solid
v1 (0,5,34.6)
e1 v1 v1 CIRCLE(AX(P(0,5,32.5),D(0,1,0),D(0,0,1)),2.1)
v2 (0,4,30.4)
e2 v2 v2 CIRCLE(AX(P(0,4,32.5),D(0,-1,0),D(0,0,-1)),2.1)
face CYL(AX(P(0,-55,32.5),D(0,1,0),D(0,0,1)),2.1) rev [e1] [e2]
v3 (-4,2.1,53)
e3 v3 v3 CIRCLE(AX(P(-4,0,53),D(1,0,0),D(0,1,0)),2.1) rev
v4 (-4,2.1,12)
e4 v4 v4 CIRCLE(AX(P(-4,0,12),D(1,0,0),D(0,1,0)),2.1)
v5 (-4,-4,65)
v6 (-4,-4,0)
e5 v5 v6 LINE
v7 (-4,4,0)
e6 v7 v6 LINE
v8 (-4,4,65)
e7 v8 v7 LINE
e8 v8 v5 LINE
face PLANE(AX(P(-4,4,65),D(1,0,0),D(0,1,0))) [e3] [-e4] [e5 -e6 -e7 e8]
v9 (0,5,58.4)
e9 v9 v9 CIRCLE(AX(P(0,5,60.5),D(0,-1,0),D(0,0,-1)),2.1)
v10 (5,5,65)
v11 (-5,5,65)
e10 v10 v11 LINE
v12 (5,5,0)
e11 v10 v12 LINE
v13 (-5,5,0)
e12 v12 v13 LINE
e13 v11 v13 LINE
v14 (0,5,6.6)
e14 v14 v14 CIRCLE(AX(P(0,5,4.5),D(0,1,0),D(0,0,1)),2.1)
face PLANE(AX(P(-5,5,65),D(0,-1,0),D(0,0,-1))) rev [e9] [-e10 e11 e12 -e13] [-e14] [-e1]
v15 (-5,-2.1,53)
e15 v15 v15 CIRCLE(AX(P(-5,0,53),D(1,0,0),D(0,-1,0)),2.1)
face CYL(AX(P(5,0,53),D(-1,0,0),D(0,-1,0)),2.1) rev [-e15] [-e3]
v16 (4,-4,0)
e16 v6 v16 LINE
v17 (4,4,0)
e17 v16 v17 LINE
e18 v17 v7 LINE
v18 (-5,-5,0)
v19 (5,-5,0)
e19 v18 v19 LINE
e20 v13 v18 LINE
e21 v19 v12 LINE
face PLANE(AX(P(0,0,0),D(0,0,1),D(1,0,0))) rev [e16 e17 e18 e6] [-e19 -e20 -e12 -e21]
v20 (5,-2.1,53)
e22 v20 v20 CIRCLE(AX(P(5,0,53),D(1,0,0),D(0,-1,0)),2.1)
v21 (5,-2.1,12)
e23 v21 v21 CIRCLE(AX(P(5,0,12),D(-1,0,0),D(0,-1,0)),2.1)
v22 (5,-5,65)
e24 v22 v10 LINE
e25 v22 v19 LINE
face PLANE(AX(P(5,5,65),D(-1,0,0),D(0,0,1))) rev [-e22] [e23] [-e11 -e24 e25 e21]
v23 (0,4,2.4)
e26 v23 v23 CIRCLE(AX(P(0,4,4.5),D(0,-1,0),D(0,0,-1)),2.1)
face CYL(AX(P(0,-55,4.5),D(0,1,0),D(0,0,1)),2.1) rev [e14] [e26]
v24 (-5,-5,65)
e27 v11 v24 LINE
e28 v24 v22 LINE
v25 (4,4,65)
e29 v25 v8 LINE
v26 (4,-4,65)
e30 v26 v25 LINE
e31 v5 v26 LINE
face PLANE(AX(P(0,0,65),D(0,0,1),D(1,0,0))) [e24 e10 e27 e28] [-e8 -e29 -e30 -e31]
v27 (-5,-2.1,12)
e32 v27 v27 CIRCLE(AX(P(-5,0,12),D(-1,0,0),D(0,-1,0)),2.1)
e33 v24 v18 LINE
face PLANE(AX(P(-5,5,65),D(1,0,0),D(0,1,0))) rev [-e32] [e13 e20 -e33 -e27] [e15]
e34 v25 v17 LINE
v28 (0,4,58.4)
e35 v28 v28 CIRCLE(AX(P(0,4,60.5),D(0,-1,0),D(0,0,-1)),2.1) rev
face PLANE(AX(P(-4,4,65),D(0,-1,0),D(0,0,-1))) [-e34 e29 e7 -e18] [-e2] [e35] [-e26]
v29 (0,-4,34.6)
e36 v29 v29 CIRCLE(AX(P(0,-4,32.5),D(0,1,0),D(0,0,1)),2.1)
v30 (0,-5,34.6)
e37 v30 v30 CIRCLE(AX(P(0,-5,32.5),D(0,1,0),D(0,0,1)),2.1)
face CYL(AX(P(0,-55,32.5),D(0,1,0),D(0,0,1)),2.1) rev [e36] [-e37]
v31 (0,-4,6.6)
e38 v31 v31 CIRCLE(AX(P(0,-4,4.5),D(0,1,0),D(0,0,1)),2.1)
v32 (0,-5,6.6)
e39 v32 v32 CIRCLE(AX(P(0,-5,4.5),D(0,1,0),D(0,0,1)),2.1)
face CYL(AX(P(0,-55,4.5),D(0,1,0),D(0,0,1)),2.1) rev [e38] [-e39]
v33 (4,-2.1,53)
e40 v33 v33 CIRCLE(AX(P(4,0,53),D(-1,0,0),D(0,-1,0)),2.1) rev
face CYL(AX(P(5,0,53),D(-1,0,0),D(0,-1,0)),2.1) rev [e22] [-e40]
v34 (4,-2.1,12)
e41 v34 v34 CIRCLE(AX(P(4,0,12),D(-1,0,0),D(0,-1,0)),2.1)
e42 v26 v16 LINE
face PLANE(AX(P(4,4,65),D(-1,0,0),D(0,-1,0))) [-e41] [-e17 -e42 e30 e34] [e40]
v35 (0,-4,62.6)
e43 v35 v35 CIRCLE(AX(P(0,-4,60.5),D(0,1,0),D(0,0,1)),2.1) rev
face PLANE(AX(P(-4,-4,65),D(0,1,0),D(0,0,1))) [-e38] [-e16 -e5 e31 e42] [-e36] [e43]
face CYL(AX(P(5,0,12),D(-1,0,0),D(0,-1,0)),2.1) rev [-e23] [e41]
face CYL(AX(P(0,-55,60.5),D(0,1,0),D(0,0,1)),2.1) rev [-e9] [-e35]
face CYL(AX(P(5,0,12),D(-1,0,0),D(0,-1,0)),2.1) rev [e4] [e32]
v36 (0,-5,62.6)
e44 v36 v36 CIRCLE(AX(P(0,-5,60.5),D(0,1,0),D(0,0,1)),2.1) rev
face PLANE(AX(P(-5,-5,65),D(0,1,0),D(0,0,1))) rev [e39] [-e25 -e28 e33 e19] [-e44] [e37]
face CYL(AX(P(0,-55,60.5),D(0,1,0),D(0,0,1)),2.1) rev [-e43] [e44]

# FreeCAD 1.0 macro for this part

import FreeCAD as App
import Part
import Sketcher
from FreeCAD import Vector

doc = App.newDocument("Part")
body = doc.addObject("PartDesign::Body", "Body")

# Sketch on XY plane
sketch1 = body.newObject("Sketcher::SketchObject", "Sketch")
sketch1.AttachmentSupport = (doc.getObject("XY_Plane"), [""])
sketch1.MapMode = "FlatFace"
sketch1.addGeometry([
    Part.LineSegment(Vector(-5, 5, 0), Vector(-5, -5, 0)),  # 0
    Part.LineSegment(Vector(-5, -5, 0), Vector(5, -5, 0)),  # 1
    Part.LineSegment(Vector(5, -5, 0), Vector(5, 5, 0)),  # 2
    Part.LineSegment(Vector(5, 5, 0), Vector(-5, 5, 0)),  # 3
    Part.LineSegment(Vector(4, -4, 0), Vector(-4, -4, 0)),  # 4
    Part.LineSegment(Vector(-4, -4, 0), Vector(-4, 4, 0)),  # 5
    Part.LineSegment(Vector(-4, 4, 0), Vector(4, 4, 0)),  # 6
    Part.LineSegment(Vector(4, 4, 0), Vector(4, -4, 0)),  # 7
], False)
sketch1.addConstraint([
    Sketcher.Constraint("Coincident", 0, 2, 1, 1),
    Sketcher.Constraint("Coincident", 1, 2, 2, 1),
    Sketcher.Constraint("Coincident", 2, 2, 3, 1),
    Sketcher.Constraint("Coincident", 3, 2, 0, 1),
    Sketcher.Constraint("Coincident", 4, 2, 5, 1),
    Sketcher.Constraint("Coincident", 5, 2, 6, 1),
    Sketcher.Constraint("Coincident", 6, 2, 7, 1),
    Sketcher.Constraint("Coincident", 7, 2, 4, 1),
    Sketcher.Constraint("Vertical", 0),
    Sketcher.Constraint("Horizontal", 1),
    Sketcher.Constraint("Vertical", 2),
    Sketcher.Constraint("Horizontal", 3),
    Sketcher.Constraint("Horizontal", 4),
    Sketcher.Constraint("Vertical", 5),
    Sketcher.Constraint("Horizontal", 6),
    Sketcher.Constraint("Vertical", 7),
    Sketcher.Constraint("Symmetric", 0, 2, 2, 2, -1, 1),
    Sketcher.Constraint("Symmetric", 4, 2, 6, 2, -1, 1),
    Sketcher.Constraint("Equal", 3, 0),
    Sketcher.Constraint("Equal", 6, 5),
    Sketcher.Constraint("DistanceX", 1, 1, 1, 2, 10.0),
    Sketcher.Constraint("DistanceX", 4, 2, 4, 1, 8.0),
])
pad1 = body.newObject("PartDesign::Pad", "Pad")
pad1.Profile = sketch1
pad1.Length = 65

# Sketch on XZ plane
sketch2 = body.newObject("Sketcher::SketchObject", "Sketch001")
sketch2.AttachmentSupport = (doc.getObject("XZ_Plane"), [""])
sketch2.MapMode = "FlatFace"
sketch2.AttachmentOffset = App.Placement(Vector(0, 0, -5), App.Rotation())
sketch2.addGeometry([
    Part.Circle(Vector(0, 4.5, 0), Vector(0, 0, 1), 2.1),
    Part.Circle(Vector(0, 32.5, 0), Vector(0, 0, 1), 2.1),
], False)
sketch2.addConstraint([
    Sketcher.Constraint("Equal", 0, 1),
    Sketcher.Constraint("PointOnObject", 0, 3, -2),
    Sketcher.Constraint("PointOnObject", 1, 3, -2),
    Sketcher.Constraint("Diameter", 0, 4.2),
    Sketcher.Constraint("DistanceY", 0, 3, 1, 3, 28.0),
    Sketcher.Constraint("DistanceY", -1, 1, 0, 3, 4.5),
])
pocket1 = body.newObject("PartDesign::Pocket", "Pocket")
pocket1.Profile = sketch2
pocket1.Length = 60
pocket1.Reversed = True
doc.recompute()

datumplane = body.newObject("PartDesign::Plane", "DatumPlane")
datumplane.AttachmentSupport = (doc.getObject("XY_Plane"), [""])
datumplane.MapMode = "FlatFace"
datumplane.AttachmentOffset = App.Placement(Vector(0, 0, 32.5), App.Rotation())
mirrored = body.newObject("PartDesign::Mirrored", "Mirrored")
mirrored.Originals = [pocket1]
mirrored.MirrorPlane = (datumplane, [""])
body.Tip = mirrored

# Sketch on YZ plane
sketch3 = body.newObject("Sketcher::SketchObject", "Sketch002")
sketch3.AttachmentSupport = (doc.getObject("YZ_Plane"), [""])
sketch3.MapMode = "FlatFace"
sketch3.AttachmentOffset = App.Placement(Vector(0, 0, -5), App.Rotation())
sketch3.addGeometry(Part.Circle(Vector(0, 12, 0), Vector(0, 0, 1), 2.1), False)
sketch3.addConstraint([
    Sketcher.Constraint("PointOnObject", 0, 3, -2),
    Sketcher.Constraint("Diameter", 0, 4.2),
    Sketcher.Constraint("DistanceY", -1, 1, 0, 3, 12.0),
])
pocket2 = body.newObject("PartDesign::Pocket", "Pocket001")
pocket2.Profile = sketch3
pocket2.Type = "ThroughAll"
pocket2.Reversed = True
doc.recompute()

datumplane2 = body.newObject("PartDesign::Plane", "DatumPlane001")
datumplane2.AttachmentSupport = (doc.getObject("XY_Plane"), [""])
datumplane2.MapMode = "FlatFace"
datumplane2.AttachmentOffset = App.Placement(Vector(0, 0, 32.5), App.Rotation())
mirrored2 = body.newObject("PartDesign::Mirrored", "Mirrored001")
mirrored2.Originals = [pocket2]
mirrored2.MirrorPlane = (datumplane2, [""])
body.Tip = mirrored2

doc.recompute()
